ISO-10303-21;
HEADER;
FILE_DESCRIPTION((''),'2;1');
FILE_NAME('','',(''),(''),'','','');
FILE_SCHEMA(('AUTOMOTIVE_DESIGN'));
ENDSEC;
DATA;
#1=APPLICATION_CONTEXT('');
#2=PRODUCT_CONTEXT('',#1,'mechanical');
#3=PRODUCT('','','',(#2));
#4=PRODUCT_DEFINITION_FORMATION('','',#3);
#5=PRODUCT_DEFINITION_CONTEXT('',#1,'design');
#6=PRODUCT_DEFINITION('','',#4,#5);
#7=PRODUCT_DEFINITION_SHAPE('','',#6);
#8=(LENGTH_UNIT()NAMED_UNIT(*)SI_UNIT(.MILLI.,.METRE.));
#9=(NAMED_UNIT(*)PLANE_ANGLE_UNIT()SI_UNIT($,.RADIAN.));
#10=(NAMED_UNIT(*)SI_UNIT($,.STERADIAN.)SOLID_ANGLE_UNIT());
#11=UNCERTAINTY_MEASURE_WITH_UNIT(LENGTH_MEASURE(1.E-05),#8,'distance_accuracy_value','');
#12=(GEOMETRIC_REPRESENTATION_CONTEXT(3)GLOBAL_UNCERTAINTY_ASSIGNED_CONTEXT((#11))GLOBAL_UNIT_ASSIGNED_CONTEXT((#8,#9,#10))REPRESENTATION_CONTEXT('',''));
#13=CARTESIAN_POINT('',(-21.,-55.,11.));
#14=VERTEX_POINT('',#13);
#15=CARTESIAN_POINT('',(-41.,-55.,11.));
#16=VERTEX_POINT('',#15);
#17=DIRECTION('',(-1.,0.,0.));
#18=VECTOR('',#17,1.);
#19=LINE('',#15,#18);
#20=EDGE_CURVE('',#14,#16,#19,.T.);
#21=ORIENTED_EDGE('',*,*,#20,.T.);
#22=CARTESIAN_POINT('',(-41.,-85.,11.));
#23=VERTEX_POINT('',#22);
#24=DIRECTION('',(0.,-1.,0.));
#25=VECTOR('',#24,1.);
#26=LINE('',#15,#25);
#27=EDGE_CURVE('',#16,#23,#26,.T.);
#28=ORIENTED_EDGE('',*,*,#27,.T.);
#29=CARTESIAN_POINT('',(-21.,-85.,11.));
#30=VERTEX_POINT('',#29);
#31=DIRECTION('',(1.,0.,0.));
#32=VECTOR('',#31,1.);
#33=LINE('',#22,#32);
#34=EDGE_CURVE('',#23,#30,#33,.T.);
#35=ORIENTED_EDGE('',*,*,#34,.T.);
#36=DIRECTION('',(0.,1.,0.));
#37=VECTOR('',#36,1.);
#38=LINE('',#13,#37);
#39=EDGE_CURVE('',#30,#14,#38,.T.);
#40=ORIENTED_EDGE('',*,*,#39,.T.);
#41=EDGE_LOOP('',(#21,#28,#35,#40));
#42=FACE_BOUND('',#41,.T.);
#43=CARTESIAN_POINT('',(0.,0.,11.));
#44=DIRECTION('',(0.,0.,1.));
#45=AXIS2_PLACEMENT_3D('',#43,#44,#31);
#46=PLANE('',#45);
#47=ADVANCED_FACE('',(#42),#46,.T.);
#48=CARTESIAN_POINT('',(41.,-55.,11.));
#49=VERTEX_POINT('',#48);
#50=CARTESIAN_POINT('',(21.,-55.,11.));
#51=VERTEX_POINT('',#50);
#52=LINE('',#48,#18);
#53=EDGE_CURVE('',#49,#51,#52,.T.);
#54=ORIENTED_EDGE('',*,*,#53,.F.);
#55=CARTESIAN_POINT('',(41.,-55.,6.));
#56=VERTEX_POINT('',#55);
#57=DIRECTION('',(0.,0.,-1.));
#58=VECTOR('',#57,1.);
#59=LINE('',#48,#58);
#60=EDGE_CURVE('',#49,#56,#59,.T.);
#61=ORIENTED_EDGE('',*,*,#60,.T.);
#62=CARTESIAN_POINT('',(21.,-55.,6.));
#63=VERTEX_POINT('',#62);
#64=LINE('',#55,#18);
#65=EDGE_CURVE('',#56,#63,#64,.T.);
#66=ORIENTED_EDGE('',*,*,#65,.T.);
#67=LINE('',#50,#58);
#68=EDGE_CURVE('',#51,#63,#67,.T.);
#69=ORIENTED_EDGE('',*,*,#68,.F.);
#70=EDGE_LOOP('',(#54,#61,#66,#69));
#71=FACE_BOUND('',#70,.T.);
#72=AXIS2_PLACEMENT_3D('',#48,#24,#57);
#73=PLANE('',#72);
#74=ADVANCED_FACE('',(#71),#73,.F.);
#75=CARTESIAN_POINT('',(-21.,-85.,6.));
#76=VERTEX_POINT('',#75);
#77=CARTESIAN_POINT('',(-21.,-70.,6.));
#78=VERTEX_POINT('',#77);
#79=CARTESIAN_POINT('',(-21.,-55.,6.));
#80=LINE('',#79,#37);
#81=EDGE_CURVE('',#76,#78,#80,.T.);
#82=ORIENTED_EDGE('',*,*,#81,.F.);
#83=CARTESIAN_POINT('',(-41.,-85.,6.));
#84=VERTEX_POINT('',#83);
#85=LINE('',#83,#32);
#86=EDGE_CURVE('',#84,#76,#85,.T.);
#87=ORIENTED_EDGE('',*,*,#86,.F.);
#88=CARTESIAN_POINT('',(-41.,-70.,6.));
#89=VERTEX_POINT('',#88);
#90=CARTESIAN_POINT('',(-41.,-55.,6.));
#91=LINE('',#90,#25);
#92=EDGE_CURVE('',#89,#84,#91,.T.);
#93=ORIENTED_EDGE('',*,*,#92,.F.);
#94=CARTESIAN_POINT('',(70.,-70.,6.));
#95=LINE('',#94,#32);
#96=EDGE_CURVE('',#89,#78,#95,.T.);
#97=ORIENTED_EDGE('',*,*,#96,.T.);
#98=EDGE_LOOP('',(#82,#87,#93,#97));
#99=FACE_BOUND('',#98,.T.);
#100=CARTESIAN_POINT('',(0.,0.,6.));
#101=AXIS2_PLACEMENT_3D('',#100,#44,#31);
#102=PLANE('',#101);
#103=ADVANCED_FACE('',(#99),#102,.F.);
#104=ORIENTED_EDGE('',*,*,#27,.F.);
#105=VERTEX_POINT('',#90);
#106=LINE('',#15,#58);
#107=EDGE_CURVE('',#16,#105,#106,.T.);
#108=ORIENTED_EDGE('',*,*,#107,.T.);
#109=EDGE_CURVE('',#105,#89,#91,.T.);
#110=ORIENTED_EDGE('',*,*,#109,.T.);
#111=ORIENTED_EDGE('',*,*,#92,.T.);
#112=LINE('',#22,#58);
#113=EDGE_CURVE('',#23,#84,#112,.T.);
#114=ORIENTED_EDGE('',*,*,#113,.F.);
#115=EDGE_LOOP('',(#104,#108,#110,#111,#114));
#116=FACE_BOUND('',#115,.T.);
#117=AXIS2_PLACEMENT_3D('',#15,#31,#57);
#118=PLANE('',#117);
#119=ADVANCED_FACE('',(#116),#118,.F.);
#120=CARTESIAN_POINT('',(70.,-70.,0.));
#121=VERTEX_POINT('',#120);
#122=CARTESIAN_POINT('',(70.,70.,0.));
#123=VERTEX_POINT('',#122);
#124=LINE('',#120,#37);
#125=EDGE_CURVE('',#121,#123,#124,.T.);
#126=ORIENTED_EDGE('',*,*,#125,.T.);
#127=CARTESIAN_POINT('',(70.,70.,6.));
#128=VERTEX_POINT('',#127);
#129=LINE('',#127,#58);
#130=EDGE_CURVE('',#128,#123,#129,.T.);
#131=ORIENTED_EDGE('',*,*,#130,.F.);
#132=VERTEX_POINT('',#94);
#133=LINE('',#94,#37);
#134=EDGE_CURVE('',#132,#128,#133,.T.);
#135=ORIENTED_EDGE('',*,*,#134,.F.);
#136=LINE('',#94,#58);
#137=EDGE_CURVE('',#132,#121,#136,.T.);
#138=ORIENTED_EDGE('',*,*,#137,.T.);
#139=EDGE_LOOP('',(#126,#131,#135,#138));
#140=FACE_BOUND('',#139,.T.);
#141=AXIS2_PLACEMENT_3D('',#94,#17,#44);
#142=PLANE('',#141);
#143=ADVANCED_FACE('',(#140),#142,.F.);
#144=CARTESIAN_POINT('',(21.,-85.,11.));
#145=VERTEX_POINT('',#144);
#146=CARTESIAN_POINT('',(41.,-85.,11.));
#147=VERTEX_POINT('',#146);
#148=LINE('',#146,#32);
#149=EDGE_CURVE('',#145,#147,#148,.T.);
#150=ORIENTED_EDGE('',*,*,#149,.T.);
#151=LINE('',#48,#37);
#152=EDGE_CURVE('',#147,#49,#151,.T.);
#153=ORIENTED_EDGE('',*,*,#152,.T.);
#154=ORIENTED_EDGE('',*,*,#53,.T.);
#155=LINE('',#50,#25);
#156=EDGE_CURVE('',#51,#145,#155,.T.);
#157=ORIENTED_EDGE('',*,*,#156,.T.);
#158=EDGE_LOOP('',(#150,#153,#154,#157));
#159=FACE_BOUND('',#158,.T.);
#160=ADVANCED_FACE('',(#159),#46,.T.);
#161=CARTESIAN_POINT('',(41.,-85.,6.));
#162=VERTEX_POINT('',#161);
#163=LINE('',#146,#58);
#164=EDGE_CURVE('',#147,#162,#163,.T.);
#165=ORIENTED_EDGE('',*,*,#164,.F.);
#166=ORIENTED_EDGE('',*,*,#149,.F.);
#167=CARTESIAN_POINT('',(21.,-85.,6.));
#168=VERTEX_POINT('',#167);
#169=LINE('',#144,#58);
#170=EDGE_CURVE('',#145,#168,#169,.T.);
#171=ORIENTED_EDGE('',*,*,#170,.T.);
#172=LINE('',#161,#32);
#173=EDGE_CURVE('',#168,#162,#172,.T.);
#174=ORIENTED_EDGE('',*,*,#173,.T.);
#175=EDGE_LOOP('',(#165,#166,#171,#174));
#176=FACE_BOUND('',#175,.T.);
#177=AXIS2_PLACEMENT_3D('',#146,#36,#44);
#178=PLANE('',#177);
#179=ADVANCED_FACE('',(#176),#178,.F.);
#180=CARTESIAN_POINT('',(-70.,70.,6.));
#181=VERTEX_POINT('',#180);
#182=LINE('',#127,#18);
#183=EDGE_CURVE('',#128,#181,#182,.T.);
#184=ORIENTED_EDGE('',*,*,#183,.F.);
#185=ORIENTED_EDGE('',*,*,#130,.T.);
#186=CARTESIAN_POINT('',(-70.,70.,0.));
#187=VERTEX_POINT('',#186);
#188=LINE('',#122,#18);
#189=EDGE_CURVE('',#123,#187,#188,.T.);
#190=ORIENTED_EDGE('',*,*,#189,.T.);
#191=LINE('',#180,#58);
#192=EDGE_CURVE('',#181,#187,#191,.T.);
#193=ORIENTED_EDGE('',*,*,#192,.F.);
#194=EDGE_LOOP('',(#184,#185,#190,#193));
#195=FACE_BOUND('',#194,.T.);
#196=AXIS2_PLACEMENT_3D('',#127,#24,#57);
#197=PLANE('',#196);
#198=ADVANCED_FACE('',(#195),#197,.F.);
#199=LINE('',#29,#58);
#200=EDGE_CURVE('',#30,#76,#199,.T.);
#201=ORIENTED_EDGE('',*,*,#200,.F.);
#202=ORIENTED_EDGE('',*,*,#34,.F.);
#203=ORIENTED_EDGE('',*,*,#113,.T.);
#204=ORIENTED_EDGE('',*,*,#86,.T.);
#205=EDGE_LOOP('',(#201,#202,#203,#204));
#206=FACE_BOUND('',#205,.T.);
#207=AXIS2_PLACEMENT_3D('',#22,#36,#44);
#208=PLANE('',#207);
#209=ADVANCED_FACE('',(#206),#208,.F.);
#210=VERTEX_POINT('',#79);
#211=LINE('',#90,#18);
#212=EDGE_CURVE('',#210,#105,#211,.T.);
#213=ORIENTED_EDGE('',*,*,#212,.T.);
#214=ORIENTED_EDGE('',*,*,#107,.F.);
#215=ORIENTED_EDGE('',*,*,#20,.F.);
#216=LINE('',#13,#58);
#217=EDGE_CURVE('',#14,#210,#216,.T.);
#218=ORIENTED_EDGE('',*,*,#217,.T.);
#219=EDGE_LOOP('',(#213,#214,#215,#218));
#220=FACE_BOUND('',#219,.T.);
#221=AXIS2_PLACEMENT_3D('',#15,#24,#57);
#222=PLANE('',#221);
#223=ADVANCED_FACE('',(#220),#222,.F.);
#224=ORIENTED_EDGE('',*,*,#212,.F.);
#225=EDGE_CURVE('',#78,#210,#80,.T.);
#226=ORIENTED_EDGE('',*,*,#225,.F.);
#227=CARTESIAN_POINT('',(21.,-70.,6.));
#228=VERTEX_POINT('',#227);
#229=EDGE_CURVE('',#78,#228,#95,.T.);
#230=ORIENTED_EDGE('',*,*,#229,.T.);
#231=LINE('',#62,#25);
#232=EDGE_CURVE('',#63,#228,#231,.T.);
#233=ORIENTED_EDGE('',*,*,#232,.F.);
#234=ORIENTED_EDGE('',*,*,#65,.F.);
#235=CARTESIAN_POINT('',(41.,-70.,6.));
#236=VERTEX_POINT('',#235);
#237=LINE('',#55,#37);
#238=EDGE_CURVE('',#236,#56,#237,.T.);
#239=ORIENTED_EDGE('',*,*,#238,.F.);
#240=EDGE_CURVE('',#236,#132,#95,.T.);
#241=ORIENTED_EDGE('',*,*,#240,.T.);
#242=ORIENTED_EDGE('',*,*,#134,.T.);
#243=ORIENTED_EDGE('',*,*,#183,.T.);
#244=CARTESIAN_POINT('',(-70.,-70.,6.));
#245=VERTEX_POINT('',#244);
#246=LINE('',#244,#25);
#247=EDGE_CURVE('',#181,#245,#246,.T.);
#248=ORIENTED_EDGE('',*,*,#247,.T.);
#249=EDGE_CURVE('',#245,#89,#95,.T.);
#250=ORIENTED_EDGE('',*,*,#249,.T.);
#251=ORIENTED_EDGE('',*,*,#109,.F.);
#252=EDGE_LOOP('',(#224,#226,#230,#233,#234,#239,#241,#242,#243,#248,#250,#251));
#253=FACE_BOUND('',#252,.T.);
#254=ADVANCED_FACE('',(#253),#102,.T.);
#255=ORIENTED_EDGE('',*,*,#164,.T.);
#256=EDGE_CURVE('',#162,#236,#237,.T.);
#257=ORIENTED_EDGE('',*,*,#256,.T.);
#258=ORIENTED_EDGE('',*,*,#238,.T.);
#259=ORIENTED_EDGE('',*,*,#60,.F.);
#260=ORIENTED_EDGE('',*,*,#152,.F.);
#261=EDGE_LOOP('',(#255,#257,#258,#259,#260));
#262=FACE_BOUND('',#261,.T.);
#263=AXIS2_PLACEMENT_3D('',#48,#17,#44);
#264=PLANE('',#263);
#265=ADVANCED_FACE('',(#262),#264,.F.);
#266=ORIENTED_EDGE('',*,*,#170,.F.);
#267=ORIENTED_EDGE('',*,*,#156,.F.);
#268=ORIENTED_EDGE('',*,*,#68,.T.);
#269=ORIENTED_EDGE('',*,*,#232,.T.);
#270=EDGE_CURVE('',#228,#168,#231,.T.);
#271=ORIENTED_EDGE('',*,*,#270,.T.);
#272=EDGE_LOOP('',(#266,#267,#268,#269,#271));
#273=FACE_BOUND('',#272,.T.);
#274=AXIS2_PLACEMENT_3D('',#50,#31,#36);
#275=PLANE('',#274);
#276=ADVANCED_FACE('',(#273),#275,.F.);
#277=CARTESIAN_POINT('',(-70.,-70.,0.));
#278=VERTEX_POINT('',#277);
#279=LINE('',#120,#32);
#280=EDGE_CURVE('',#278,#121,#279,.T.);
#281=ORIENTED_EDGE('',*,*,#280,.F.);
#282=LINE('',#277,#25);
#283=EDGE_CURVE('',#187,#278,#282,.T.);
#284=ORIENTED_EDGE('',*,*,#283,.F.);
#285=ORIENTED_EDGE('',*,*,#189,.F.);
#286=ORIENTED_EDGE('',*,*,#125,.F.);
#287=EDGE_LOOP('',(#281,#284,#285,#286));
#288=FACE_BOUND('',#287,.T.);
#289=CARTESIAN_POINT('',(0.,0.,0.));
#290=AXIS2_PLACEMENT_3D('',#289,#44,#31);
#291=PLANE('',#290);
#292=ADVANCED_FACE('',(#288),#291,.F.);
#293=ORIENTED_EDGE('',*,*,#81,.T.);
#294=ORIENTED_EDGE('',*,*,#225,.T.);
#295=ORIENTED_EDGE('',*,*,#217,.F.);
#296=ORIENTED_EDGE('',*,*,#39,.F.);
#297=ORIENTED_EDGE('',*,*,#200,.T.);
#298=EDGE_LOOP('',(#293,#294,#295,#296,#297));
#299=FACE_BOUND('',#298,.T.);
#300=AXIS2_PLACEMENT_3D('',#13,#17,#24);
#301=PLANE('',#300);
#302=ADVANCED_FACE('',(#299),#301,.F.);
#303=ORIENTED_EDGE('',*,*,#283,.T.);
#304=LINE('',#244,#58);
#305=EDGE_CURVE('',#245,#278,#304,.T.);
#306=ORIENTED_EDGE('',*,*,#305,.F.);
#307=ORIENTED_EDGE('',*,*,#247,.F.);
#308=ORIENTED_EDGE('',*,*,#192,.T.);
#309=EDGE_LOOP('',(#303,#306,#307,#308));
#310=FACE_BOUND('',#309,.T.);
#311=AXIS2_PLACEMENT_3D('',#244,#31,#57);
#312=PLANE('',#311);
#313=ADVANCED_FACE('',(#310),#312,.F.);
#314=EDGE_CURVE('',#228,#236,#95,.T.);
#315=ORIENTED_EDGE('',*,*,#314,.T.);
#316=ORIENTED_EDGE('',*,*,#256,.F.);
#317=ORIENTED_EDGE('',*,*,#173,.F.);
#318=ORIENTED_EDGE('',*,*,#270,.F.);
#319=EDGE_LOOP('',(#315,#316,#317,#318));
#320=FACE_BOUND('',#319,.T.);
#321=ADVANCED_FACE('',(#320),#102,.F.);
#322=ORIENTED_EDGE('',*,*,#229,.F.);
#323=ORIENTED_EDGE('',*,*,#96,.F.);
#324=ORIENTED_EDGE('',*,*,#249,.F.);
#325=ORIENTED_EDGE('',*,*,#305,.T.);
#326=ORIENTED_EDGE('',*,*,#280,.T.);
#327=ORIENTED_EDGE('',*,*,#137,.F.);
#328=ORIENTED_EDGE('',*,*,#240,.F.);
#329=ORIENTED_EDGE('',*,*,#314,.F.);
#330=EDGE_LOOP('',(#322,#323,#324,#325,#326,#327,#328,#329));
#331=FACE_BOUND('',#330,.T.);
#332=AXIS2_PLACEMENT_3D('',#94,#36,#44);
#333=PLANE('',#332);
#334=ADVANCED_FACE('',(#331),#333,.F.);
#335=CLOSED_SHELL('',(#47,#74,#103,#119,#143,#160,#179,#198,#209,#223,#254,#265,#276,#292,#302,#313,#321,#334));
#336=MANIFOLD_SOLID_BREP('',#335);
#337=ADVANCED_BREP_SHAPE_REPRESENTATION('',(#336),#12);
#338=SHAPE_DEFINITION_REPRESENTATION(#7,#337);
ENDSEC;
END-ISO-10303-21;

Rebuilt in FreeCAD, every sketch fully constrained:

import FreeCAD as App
import Part
import Sketcher
Q = App.Units.Quantity

doc = App.newDocument("Part")
body = doc.addObject("PartDesign::Body", "Body")

# Sketch on XY plane
sketch1 = body.newObject("Sketcher::SketchObject", "Sketch")
sketch1.AttachmentSupport = (doc.getObject("XY_Plane"), [""])
sketch1.MapMode = "FlatFace"
sketch1.addGeometry(Part.LineSegment(App.Vector(-70, 70, 0), App.Vector(-70, -70, 0)), False)
sketch1.addGeometry(Part.LineSegment(App.Vector(-70, -70, 0), App.Vector(70, -70, 0)), False)
sketch1.addGeometry(Part.LineSegment(App.Vector(70, -70, 0), App.Vector(70, 70, 0)), False)
sketch1.addGeometry(Part.LineSegment(App.Vector(70, 70, 0), App.Vector(-70, 70, 0)), False)
sketch1.addConstraint(Sketcher.Constraint("Coincident", 0, 2, 1, 1))
sketch1.addConstraint(Sketcher.Constraint("Coincident", 1, 2, 2, 1))
sketch1.addConstraint(Sketcher.Constraint("Coincident", 2, 2, 3, 1))
sketch1.addConstraint(Sketcher.Constraint("Coincident", 3, 2, 0, 1))
sketch1.addConstraint(Sketcher.Constraint("Vertical", 0))
sketch1.addConstraint(Sketcher.Constraint("Horizontal", 1))
sketch1.addConstraint(Sketcher.Constraint("Vertical", 2))
sketch1.addConstraint(Sketcher.Constraint("Horizontal", 3))
sketch1.addConstraint(Sketcher.Constraint("Symmetric", 0, 2, 2, 2, -1, 1))
sketch1.addConstraint(Sketcher.Constraint("Equal", 3, 0))
sketch1.addConstraint(Sketcher.Constraint("DistanceX", 1, 1, 1, 2, Q("140 mm")))
pad1 = body.newObject("PartDesign::Pad", "Pad")
pad1.Profile = sketch1
pad1.Length = 6

# Sketch on XY plane
sketch2 = body.newObject("Sketcher::SketchObject", "Sketch001")
sketch2.AttachmentSupport = (doc.getObject("XY_Plane"), [""])
sketch2.MapMode = "FlatFace"
sketch2.AttachmentOffset = App.Placement(App.Vector(0, 0, 6), App.Rotation())
sketch2.addGeometry(Part.LineSegment(App.Vector(-41, -55, 0), App.Vector(-41, -85, 0)), False)
sketch2.addGeometry(Part.LineSegment(App.Vector(-41, -85, 0), App.Vector(-21, -85, 0)), False)
sketch2.addGeometry(Part.LineSegment(App.Vector(-21, -85, 0), App.Vector(-21, -55, 0)), False)
sketch2.addGeometry(Part.LineSegment(App.Vector(-21, -55, 0), App.Vector(-41, -55, 0)), False)
sketch2.addGeometry(Part.LineSegment(App.Vector(21, -55, 0), App.Vector(21, -85, 0)), False)
sketch2.addGeometry(Part.LineSegment(App.Vector(21, -85, 0), App.Vector(41, -85, 0)), False)
sketch2.addGeometry(Part.LineSegment(App.Vector(41, -85, 0), App.Vector(41, -55, 0)), False)
sketch2.addGeometry(Part.LineSegment(App.Vector(41, -55, 0), App.Vector(21, -55, 0)), False)
sketch2.addConstraint(Sketcher.Constraint("Coincident", 0, 2, 1, 1))
sketch2.addConstraint(Sketcher.Constraint("Coincident", 1, 2, 2, 1))
sketch2.addConstraint(Sketcher.Constraint("Coincident", 2, 2, 3, 1))
sketch2.addConstraint(Sketcher.Constraint("Coincident", 3, 2, 0, 1))
sketch2.addConstraint(Sketcher.Constraint("Coincident", 4, 2, 5, 1))
sketch2.addConstraint(Sketcher.Constraint("Coincident", 5, 2, 6, 1))
sketch2.addConstraint(Sketcher.Constraint("Coincident", 6, 2, 7, 1))
sketch2.addConstraint(Sketcher.Constraint("Coincident", 7, 2, 4, 1))
sketch2.addConstraint(Sketcher.Constraint("Vertical", 0))
sketch2.addConstraint(Sketcher.Constraint("Horizontal", 1))
sketch2.addConstraint(Sketcher.Constraint("Vertical", 2))
sketch2.addConstraint(Sketcher.Constraint("Horizontal", 3))
sketch2.addConstraint(Sketcher.Constraint("Vertical", 4))
sketch2.addConstraint(Sketcher.Constraint("Horizontal", 5))
sketch2.addConstraint(Sketcher.Constraint("Vertical", 6))
sketch2.addConstraint(Sketcher.Constraint("Horizontal", 7))
sketch2.addConstraint(Sketcher.Constraint("Symmetric", 1, 2, 4, 2, -2))
sketch2.addConstraint(Sketcher.Constraint("Symmetric", 3, 2, 6, 2, -2))
sketch2.addConstraint(Sketcher.Constraint("DistanceX", 1, 1, 1, 2, Q("20 mm")))
sketch2.addConstraint(Sketcher.Constraint("DistanceY", 0, 2, 0, 1, Q("30 mm")))
sketch2.addConstraint(Sketcher.Constraint("DistanceX", 0, 2, -1, 1, Q("41 mm")))
sketch2.addConstraint(Sketcher.Constraint("DistanceY", 0, 2, -1, 1, Q("85 mm")))
pad2 = body.newObject("PartDesign::Pad", "Pad001")
pad2.Profile = sketch2
pad2.Length = 5

doc.recompute()
